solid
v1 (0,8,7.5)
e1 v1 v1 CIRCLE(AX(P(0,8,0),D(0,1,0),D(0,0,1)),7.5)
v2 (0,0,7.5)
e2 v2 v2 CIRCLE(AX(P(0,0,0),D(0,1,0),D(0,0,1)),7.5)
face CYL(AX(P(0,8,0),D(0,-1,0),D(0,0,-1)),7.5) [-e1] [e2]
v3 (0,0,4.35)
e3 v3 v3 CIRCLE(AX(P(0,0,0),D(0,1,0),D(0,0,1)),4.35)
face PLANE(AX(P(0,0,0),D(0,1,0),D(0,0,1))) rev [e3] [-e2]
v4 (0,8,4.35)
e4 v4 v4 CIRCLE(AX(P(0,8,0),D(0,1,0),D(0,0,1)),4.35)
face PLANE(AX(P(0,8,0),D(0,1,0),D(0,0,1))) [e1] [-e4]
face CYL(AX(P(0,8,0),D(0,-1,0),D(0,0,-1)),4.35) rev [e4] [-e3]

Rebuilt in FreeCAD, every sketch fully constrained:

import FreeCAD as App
import Part
import Sketcher
from FreeCAD import Vector
Q = App.Units.Quantity

doc = App.newDocument("Part")
body = doc.addObject("PartDesign::Body", "Body")

# Sketch on XZ plane
sketch1 = body.newObject("Sketcher::SketchObject", "Sketch")
sketch1.AttachmentSupport = (doc.getObject("XZ_Plane"), [""])
sketch1.MapMode = "FlatFace"
sketch1.addGeometry([
    Part.Circle(Vector(0, 0, 0), Vector(0, 0, 1), 7.5),
    Part.Circle(Vector(0, 0, 0), Vector(0, 0, 1), 4.3),
], False)
sketch1.addConstraint([
    Sketcher.Constraint("Coincident", 0, 3, -1, 1),
    Sketcher.Constraint("Coincident", 1, 3, -1, 1),
    Sketcher.Constraint("Diameter", 0, Q("15 mm")),
    Sketcher.Constraint("Diameter", 1, Q("8.7 mm")),
])
pad1 = body.newObject("PartDesign::Pad", "Pad")
pad1.Profile = sketch1
pad1.Length = 8
pad1.Reversed = True

doc.recompute()
